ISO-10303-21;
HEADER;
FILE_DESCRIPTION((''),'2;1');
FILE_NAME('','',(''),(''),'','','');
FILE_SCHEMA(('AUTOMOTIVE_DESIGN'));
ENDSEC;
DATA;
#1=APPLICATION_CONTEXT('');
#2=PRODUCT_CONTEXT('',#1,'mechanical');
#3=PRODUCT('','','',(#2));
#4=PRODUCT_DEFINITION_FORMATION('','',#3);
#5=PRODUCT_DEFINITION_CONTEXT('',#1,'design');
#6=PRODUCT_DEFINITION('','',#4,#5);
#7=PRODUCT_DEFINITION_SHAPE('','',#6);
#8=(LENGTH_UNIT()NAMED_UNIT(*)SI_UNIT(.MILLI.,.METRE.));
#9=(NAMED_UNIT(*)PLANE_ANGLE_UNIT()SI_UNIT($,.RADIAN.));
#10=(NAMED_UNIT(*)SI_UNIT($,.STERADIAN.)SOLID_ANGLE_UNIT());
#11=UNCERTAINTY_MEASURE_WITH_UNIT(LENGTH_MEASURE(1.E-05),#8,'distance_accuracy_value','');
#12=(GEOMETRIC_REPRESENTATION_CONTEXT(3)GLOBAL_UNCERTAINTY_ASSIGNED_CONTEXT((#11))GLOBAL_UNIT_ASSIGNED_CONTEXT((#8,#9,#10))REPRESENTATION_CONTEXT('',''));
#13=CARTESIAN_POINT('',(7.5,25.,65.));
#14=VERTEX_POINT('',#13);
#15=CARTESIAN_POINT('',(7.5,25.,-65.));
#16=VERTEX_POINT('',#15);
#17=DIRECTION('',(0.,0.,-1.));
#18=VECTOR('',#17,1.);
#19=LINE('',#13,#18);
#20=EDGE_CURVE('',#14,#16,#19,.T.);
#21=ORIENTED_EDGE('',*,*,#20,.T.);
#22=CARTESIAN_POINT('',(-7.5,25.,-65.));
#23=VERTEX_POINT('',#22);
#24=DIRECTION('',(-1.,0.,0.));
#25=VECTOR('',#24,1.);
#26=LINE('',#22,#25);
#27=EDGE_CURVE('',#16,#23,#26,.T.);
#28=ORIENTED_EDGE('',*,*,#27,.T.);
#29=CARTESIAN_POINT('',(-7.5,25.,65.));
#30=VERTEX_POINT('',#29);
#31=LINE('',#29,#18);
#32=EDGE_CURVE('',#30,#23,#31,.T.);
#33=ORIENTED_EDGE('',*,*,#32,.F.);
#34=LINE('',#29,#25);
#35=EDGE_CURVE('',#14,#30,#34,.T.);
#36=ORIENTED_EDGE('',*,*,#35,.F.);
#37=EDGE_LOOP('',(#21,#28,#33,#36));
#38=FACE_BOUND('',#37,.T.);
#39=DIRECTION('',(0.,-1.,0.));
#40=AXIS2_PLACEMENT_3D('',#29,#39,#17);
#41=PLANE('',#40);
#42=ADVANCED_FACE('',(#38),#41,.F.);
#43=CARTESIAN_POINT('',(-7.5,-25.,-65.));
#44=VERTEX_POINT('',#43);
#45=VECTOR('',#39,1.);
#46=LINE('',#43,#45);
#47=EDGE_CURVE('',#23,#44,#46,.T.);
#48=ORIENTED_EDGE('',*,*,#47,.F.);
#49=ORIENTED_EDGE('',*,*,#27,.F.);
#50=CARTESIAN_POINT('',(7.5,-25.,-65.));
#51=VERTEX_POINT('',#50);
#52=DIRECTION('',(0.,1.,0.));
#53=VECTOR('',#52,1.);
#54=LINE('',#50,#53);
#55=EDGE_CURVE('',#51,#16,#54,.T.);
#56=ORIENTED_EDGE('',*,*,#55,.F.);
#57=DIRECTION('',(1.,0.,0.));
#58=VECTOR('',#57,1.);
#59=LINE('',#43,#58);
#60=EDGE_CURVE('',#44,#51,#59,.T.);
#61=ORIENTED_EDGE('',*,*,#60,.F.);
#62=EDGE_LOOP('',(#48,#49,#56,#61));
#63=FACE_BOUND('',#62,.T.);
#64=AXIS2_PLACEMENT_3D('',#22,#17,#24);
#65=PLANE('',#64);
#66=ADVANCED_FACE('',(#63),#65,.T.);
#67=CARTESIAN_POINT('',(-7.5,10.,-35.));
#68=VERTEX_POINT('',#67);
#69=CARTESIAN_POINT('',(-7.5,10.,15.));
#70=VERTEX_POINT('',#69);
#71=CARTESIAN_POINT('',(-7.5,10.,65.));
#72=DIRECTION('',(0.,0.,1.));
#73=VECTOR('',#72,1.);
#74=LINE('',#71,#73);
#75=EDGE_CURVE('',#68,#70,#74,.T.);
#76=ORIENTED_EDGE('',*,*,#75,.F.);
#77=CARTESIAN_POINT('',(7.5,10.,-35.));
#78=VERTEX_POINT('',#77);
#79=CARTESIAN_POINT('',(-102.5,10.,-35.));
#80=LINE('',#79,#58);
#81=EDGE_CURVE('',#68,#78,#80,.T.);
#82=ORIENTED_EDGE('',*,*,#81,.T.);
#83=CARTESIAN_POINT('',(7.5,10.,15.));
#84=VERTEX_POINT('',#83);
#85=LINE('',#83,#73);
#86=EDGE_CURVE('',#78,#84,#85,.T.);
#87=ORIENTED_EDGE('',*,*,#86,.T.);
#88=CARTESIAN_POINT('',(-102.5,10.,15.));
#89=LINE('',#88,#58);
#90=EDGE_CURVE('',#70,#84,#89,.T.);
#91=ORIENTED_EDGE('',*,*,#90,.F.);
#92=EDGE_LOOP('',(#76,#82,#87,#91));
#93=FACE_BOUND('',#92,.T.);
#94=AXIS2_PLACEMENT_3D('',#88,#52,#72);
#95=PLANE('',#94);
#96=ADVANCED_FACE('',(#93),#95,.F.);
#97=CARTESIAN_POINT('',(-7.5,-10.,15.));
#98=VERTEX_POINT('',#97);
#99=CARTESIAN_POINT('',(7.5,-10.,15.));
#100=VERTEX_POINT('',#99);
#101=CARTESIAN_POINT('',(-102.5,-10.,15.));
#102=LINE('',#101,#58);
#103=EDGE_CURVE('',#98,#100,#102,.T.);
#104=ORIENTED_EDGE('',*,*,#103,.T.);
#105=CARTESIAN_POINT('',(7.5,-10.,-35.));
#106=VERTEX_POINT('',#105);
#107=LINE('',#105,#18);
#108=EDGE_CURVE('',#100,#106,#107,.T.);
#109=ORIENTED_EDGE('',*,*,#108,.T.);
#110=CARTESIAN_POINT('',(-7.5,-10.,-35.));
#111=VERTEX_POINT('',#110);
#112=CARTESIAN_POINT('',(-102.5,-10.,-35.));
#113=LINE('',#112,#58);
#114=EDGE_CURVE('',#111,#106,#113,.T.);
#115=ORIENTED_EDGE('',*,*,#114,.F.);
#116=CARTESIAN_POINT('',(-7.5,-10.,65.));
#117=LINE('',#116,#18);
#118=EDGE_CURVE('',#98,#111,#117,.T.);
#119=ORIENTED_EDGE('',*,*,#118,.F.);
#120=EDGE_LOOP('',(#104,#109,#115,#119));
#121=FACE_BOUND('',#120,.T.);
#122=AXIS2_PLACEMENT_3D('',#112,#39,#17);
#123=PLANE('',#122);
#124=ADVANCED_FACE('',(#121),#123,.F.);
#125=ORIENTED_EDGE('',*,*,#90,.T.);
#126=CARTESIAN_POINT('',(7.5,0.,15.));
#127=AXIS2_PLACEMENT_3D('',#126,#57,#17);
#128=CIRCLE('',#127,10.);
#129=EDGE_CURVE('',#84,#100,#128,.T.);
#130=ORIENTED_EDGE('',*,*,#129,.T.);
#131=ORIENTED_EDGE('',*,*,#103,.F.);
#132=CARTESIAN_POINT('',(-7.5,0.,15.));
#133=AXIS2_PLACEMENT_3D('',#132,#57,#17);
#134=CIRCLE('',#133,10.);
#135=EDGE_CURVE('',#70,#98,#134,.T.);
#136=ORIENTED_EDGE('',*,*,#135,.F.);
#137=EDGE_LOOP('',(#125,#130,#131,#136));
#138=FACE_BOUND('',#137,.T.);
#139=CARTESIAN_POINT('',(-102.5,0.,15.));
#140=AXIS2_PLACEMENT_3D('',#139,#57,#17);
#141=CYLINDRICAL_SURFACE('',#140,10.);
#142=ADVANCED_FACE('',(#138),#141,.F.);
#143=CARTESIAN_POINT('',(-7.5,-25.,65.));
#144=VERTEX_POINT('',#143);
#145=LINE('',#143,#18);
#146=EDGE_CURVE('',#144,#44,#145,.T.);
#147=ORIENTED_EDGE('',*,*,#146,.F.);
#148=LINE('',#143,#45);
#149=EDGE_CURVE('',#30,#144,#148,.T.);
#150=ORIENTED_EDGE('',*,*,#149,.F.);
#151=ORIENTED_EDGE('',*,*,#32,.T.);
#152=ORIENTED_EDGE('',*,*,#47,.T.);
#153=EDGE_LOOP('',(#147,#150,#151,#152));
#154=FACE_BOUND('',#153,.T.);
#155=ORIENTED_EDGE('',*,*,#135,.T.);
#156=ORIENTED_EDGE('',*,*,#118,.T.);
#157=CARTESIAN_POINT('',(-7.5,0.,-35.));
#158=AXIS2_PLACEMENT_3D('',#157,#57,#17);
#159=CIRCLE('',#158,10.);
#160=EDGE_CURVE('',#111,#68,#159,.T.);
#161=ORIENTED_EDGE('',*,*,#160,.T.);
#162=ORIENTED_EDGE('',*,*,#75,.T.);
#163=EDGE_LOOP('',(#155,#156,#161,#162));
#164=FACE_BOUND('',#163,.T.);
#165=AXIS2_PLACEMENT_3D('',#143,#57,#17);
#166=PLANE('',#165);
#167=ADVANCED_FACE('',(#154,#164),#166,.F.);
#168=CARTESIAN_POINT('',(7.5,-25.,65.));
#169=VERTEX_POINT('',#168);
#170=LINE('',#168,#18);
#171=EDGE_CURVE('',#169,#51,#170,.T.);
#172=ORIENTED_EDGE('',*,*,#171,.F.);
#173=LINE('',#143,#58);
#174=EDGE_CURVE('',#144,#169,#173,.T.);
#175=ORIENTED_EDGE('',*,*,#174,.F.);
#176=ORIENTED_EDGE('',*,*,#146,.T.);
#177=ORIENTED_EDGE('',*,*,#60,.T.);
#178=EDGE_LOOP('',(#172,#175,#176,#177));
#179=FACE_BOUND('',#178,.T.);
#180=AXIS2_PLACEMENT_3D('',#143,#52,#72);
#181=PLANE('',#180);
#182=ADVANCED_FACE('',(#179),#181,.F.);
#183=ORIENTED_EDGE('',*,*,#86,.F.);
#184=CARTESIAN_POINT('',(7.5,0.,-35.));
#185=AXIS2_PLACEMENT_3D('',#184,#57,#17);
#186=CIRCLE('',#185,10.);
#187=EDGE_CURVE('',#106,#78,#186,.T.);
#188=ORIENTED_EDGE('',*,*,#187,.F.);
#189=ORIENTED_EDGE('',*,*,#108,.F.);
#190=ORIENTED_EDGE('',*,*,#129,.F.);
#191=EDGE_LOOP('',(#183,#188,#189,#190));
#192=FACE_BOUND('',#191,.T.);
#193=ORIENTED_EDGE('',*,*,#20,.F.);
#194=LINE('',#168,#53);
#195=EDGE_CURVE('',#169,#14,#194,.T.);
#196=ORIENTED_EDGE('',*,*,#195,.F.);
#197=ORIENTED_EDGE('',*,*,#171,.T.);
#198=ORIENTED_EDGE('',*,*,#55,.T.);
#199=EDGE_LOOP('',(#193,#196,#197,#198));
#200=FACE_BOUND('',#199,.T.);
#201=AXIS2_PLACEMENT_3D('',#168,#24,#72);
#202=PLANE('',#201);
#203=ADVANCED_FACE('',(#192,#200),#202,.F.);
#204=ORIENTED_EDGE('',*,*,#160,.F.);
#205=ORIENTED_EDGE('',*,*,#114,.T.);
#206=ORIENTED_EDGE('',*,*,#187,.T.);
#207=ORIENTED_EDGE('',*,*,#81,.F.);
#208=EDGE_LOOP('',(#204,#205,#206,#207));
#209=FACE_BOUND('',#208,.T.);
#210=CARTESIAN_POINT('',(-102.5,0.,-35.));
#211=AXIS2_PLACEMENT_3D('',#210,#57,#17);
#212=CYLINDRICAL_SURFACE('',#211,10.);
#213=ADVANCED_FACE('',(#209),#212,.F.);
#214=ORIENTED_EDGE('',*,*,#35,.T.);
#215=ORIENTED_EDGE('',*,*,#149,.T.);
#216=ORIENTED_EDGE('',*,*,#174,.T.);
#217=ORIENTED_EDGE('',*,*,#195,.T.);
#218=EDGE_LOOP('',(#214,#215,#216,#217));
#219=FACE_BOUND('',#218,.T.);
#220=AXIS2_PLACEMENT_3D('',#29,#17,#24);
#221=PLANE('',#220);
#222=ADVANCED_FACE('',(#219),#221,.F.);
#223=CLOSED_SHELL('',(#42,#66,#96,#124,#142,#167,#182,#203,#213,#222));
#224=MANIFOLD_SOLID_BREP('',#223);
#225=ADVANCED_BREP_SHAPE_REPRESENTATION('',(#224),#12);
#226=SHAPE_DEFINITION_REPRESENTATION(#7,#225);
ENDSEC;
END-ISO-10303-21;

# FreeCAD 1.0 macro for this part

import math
import FreeCAD as App
import Part
import Sketcher
Q = App.Units.Quantity

doc = App.newDocument("Part")
params = doc.addObject("Spreadsheet::Sheet", "Params")
for row, (alias, value) in enumerate([
    ("sketch1_width", "15 mm"),
    ("sketch1_height", "50 mm"),
    ("pad1_length", "130 mm"),
    ("sketch2_radius", "10 mm"),
    ("sketch2_height", "50 mm"),
    ("pocket1_length", "110 mm"),
], start=1):
    params.set(f"A{row}", alias)
    params.set(f"B{row}", "=" + value)
    params.setAlias(f"B{row}", alias)

body = doc.addObject("PartDesign::Body", "Body")

sketch1 = body.newObject("Sketcher::SketchObject", "Sketch")
sketch1.AttachmentSupport = (doc.getObject("XY_Plane"), [""])
sketch1.MapMode = "FlatFace"
sketch1.addGeometry(Part.LineSegment(App.Vector(-7.5, 25, 0), App.Vector(-7.5, -25, 0)), False)
sketch1.addGeometry(Part.LineSegment(App.Vector(-7.5, -25, 0), App.Vector(7.5, -25, 0)), False)
sketch1.addGeometry(Part.LineSegment(App.Vector(7.5, -25, 0), App.Vector(7.5, 25, 0)), False)
sketch1.addGeometry(Part.LineSegment(App.Vector(7.5, 25, 0), App.Vector(-7.5, 25, 0)), False)
sketch1.addConstraint(Sketcher.Constraint("Coincident", 0, 2, 1, 1))
sketch1.addConstraint(Sketcher.Constraint("Coincident", 1, 2, 2, 1))
sketch1.addConstraint(Sketcher.Constraint("Coincident", 2, 2, 3, 1))
sketch1.addConstraint(Sketcher.Constraint("Coincident", 3, 2, 0, 1))
sketch1.addConstraint(Sketcher.Constraint("Vertical", 0))
sketch1.addConstraint(Sketcher.Constraint("Horizontal", 1))
sketch1.addConstraint(Sketcher.Constraint("Vertical", 2))
sketch1.addConstraint(Sketcher.Constraint("Horizontal", 3))
sketch1.addConstraint(Sketcher.Constraint("Symmetric", 0, 2, 2, 2, -1, 1))
sketch1.addConstraint(Sketcher.Constraint("DistanceX", 1, 1, 1, 2, Q("15 mm")))
sketch1.addConstraint(Sketcher.Constraint("DistanceY", 0, 2, 0, 1, Q("50 mm")))
sketch1.setExpression("Constraints[9]", "Params.sketch1_width")
sketch1.setExpression("Constraints[10]", "Params.sketch1_height")
pad1 = body.newObject("PartDesign::Pad", "Pad")
pad1.Profile = sketch1
pad1.setExpression("Length", "Params.pad1_length")
pad1.Midplane = True

sketch2 = body.newObject("Sketcher::SketchObject", "Sketch001")
sketch2.AttachmentSupport = (doc.getObject("YZ_Plane"), [""])
sketch2.MapMode = "FlatFace"
sketch2.AttachmentOffset = App.Placement(App.Vector(0, 0, 7.5), App.Rotation())
sketch2.addGeometry(Part.LineSegment(App.Vector(10, -35, 0), App.Vector(10, 15, 0)), False)
sketch2.addGeometry(Part.ArcOfCircle(Part.Circle(App.Vector(0, 15, 0), App.Vector(0, 0, 1), 10), math.radians(0), math.radians(180)), False)
sketch2.addGeometry(Part.LineSegment(App.Vector(-10, 15, 0), App.Vector(-10, -35, 0)), False)
sketch2.addGeometry(Part.ArcOfCircle(Part.Circle(App.Vector(0, -35, 0), App.Vector(0, 0, 1), 10), math.radians(180), math.radians(360)), False)
sketch2.addConstraint(Sketcher.Constraint("Tangent", 0, 2, 1, 1))
sketch2.addConstraint(Sketcher.Constraint("Tangent", 1, 2, 2, 1))
sketch2.addConstraint(Sketcher.Constraint("Tangent", 2, 2, 3, 1))
sketch2.addConstraint(Sketcher.Constraint("Tangent", 3, 2, 0, 1))
sketch2.addConstraint(Sketcher.Constraint("Vertical", 0))
sketch2.addConstraint(Sketcher.Constraint("Vertical", 2))
sketch2.addConstraint(Sketcher.Constraint("PointOnObject", 1, 3, -2))
sketch2.addConstraint(Sketcher.Constraint("Radius", 1, Q("10 mm")))
sketch2.addConstraint(Sketcher.Constraint("DistanceY", 0, 1, 0, 2, Q("50 mm")))
sketch2.addConstraint(Sketcher.Constraint("DistanceY", -1, 1, 1, 3, Q("15 mm")))
sketch2.setExpression("Constraints[7]", "Params.sketch2_radius")
sketch2.setExpression("Constraints[8]", "Params.sketch2_height")
pocket1 = body.newObject("PartDesign::Pocket", "Pocket")
pocket1.Profile = sketch2
pocket1.setExpression("Length", "Params.pocket1_length")

doc.recompute()
